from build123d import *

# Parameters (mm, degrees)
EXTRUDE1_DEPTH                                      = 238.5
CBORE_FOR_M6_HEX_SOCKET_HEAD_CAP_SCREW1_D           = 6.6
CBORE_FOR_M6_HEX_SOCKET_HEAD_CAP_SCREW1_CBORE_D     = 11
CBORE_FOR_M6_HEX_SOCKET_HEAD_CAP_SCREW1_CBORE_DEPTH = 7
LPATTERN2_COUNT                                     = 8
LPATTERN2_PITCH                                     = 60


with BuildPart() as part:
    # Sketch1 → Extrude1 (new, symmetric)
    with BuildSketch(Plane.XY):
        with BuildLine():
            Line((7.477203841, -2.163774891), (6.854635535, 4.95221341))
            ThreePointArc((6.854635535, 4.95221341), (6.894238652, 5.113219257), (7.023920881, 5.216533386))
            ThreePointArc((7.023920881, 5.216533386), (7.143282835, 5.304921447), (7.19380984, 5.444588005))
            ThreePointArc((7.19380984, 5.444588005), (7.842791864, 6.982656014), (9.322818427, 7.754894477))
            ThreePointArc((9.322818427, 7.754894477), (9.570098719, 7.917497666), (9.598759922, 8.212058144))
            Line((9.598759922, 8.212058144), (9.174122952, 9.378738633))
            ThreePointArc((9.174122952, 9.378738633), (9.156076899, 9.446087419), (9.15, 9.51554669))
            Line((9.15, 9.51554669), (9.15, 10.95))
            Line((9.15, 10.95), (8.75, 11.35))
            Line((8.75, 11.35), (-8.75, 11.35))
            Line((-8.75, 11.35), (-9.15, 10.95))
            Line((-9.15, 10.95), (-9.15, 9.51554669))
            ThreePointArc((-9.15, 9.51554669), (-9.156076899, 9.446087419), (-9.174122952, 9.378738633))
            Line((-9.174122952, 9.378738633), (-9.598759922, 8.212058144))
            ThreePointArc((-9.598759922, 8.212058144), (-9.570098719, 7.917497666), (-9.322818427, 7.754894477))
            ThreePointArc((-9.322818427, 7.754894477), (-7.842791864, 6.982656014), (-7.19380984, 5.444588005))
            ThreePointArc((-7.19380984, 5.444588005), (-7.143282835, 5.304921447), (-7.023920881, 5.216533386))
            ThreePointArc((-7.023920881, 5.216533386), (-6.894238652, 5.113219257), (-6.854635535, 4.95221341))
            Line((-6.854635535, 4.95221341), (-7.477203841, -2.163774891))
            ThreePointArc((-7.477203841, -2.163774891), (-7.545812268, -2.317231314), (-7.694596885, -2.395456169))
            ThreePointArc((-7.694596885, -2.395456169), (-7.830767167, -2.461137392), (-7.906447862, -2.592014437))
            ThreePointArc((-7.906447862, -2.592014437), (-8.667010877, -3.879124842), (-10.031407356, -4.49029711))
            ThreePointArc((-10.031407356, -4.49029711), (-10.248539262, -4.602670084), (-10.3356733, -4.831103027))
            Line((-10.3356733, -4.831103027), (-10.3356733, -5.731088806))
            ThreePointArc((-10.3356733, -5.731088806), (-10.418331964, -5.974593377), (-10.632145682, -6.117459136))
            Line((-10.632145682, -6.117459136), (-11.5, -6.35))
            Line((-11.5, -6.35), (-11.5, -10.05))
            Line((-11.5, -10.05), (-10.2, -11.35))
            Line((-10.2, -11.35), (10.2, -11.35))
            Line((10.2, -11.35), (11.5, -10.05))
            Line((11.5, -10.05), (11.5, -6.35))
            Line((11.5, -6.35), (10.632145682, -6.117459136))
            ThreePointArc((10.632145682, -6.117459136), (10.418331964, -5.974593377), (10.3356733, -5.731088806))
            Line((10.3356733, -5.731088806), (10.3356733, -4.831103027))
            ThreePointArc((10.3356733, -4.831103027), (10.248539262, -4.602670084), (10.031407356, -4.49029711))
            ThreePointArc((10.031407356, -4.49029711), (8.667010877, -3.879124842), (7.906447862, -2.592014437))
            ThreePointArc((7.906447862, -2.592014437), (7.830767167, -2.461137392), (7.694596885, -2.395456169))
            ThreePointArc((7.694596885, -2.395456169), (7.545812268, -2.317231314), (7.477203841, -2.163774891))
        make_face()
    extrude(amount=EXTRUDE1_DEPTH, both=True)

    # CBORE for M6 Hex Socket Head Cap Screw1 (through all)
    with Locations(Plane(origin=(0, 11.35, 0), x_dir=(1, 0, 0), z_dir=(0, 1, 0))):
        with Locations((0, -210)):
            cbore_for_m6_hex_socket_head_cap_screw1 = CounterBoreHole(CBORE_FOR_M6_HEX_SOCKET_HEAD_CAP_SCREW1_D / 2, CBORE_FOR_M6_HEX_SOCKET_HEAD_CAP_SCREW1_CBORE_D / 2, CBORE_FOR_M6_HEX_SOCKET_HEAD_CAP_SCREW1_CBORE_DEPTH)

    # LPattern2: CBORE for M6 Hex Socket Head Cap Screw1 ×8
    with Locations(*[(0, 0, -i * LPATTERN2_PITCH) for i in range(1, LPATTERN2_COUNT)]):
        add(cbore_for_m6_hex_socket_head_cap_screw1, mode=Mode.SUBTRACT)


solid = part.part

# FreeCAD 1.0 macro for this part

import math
import FreeCAD as App
import Part
import Sketcher

V = App.Vector
Q = App.Units.Quantity

doc = App.newDocument("Part")
params = doc.addObject("Spreadsheet::Sheet", "Params")
for row, (alias, value) in enumerate([
    ("sketch1_radius", "0.4 mm"),
    ("sketch1_width", "17.5 mm"),
    ("sketch1_width2", "20.4 mm"),
    ("sketch1_height", "3.7 mm"),
    ("pad1_length", "477 mm"),
    ("sketch2_diameter", "6.6 mm"),
    ("hole_diameter", "6.6 mm"),
    ("hole_cbore_diameter", "11 mm"),
    ("hole_cbore_depth", "7 mm"),
    ("linearpattern_pitch", "60 mm"),
], start=1):
    params.set(f"A{row}", alias)
    params.set(f"B{row}", "=" + value)
    params.setAlias(f"B{row}", alias)

body = doc.addObject("PartDesign::Body", "Body")

# Sketch on XY plane
sketch1 = body.newObject("Sketcher::SketchObject", "Sketch")
sketch1.AttachmentSupport = (doc.getObject("XY_Plane"), [""])
sketch1.MapMode = "FlatFace"
sketch1.addGeometry(Part.LineSegment(V(7.48, -2.16, 0), V(6.85, 4.95, 0)), False)
sketch1.addGeometry(Part.ArcOfCircle(Part.Circle(V(7.11, 4.97, 0), V(0, 0, 1), 0.26), math.radians(110), math.radians(185)), False)
sketch1.addGeometry(Part.ArcOfCircle(Part.Circle(V(6.94, 5.46, 0), V(0, 0, 1), 0.26), math.radians(-70), math.radians(-3)), False)
sketch1.addGeometry(Part.ArcOfCircle(Part.Circle(V(9.66, 5.31, 0), V(0, 0, 1), 2.47), math.radians(98), math.radians(177)), False)
sketch1.addGeometry(Part.ArcOfCircle(Part.Circle(V(9.28, 8.09, 0), V(0, 0, 1), 0.34), math.radians(-82), math.radians(20)), False)
sketch1.addGeometry(Part.LineSegment(V(9.6, 8.21, 0), V(9.17, 9.38, 0)), False)
sketch1.addGeometry(Part.ArcOfCircle(Part.Circle(V(9.55, 9.52, 0), V(0, 0, 1), 0.4), math.radians(-180), math.radians(-160)), False)
sketch1.addGeometry(Part.LineSegment(V(9.15, 9.52, 0), V(9.15, 10.95, 0)), False)
sketch1.addGeometry(Part.LineSegment(V(9.15, 10.95, 0), V(8.75, 11.35, 0)), False)
sketch1.addGeometry(Part.LineSegment(V(8.75, 11.35, 0), V(-8.75, 11.35, 0)), False)
sketch1.addGeometry(Part.LineSegment(V(-8.75, 11.35, 0), V(-9.15, 10.95, 0)), False)
sketch1.addGeometry(Part.LineSegment(V(-9.15, 10.95, 0), V(-9.15, 9.52, 0)), False)
sketch1.addGeometry(Part.ArcOfCircle(Part.Circle(V(-9.55, 9.52, 0), V(0, 0, 1), 0.4), math.radians(-20), math.radians(0)), False)
sketch1.addGeometry(Part.LineSegment(V(-9.17, 9.38, 0), V(-9.6, 8.21, 0)), False)
sketch1.addGeometry(Part.ArcOfCircle(Part.Circle(V(-9.28, 8.09, 0), V(0, 0, 1), 0.34), math.radians(160), math.radians(262)), False)
sketch1.addGeometry(Part.ArcOfCircle(Part.Circle(V(-9.66, 5.31, 0), V(0, 0, 1), 2.47), math.radians(3), math.radians(82)), False)
sketch1.addGeometry(Part.ArcOfCircle(Part.Circle(V(-6.94, 5.46, 0), V(0, 0, 1), 0.26), math.radians(-177), math.radians(-110)), False)
sketch1.addGeometry(Part.ArcOfCircle(Part.Circle(V(-7.11, 4.97, 0), V(0, 0, 1), 0.26), math.radians(-5), math.radians(70)), False)
sketch1.addGeometry(Part.LineSegment(V(-6.85, 4.95, 0), V(-7.48, -2.16, 0)), False)
sketch1.addGeometry(Part.ArcOfCircle(Part.Circle(V(-7.73, -2.14, 0), V(0, 0, 1), 0.26), math.radians(-81), math.radians(-5)), False)
sketch1.addGeometry(Part.ArcOfCircle(Part.Circle(V(-7.66, -2.65, 0), V(0, 0, 1), 0.26), math.radians(99), math.radians(167)), False)
sketch1.addGeometry(Part.ArcOfCircle(Part.Circle(V(-10.31, -2.04, 0), V(0, 0, 1), 2.47), math.radians(-84), math.radians(-13)), False)
sketch1.addGeometry(Part.ArcOfCircle(Part.Circle(V(-9.99, -4.83, 0), V(0, 0, 1), 0.34), math.radians(96), math.radians(180)), False)
sketch1.addGeometry(Part.LineSegment(V(-10.34, -4.83, 0), V(-10.34, -5.73, 0)), False)
sketch1.addGeometry(Part.ArcOfCircle(Part.Circle(V(-10.74, -5.73, 0), V(0, 0, 1), 0.4), math.radians(-75), math.radians(0)), False)
sketch1.addGeometry(Part.LineSegment(V(-10.63, -6.12, 0), V(-11.5, -6.35, 0)), False)
sketch1.addGeometry(Part.LineSegment(V(-11.5, -6.35, 0), V(-11.5, -10.05, 0)), False)
sketch1.addGeometry(Part.LineSegment(V(-11.5, -10.05, 0), V(-10.2, -11.35, 0)), False)
sketch1.addGeometry(Part.LineSegment(V(-10.2, -11.35, 0), V(10.2, -11.35, 0)), False)
sketch1.addGeometry(Part.LineSegment(V(10.2, -11.35, 0), V(11.5, -10.05, 0)), False)
sketch1.addGeometry(Part.LineSegment(V(11.5, -10.05, 0), V(11.5, -6.35, 0)), False)
sketch1.addGeometry(Part.LineSegment(V(11.5, -6.35, 0), V(10.63, -6.12, 0)), False)
sketch1.addGeometry(Part.ArcOfCircle(Part.Circle(V(10.74, -5.73, 0), V(0, 0, 1), 0.4), math.radians(-180), math.radians(-105)), False)
sketch1.addGeometry(Part.LineSegment(V(10.34, -5.73, 0), V(10.34, -4.83, 0)), False)
sketch1.addGeometry(Part.ArcOfCircle(Part.Circle(V(9.99, -4.83, 0), V(0, 0, 1), 0.34), math.radians(0), math.radians(84)), False)
sketch1.addGeometry(Part.ArcOfCircle(Part.Circle(V(10.31, -2.04, 0), V(0, 0, 1), 2.47), math.radians(-167), math.radians(-96)), False)
sketch1.addGeometry(Part.ArcOfCircle(Part.Circle(V(7.66, -2.65, 0), V(0, 0, 1), 0.26), math.radians(13), math.radians(81)), False)
sketch1.addGeometry(Part.ArcOfCircle(Part.Circle(V(7.73, -2.14, 0), V(0, 0, 1), 0.26), math.radians(-175), math.radians(-99)), False)
sketch1.addConstraint(Sketcher.Constraint("Tangent", 0, 2, 1, 2))
sketch1.addConstraint(Sketcher.Constraint("Tangent", 1, 1, 2, 1))
sketch1.addConstraint(Sketcher.Constraint("Tangent", 2, 2, 3, 2))
sketch1.addConstraint(Sketcher.Constraint("Tangent", 3, 1, 4, 1))
sketch1.addConstraint(Sketcher.Constraint("Tangent", 4, 2, 5, 1))
sketch1.addConstraint(Sketcher.Constraint("Tangent", 5, 2, 6, 2))
sketch1.addConstraint(Sketcher.Constraint("Tangent", 6, 1, 7, 1))
sketch1.addConstraint(Sketcher.Constraint("Coincident", 7, 2, 8, 1))
sketch1.addConstraint(Sketcher.Constraint("Coincident", 8, 2, 9, 1))
sketch1.addConstraint(Sketcher.Constraint("Coincident", 9, 2, 10, 1))
sketch1.addConstraint(Sketcher.Constraint("Coincident", 10, 2, 11, 1))
sketch1.addConstraint(Sketcher.Constraint("Tangent", 11, 2, 12, 2))
sketch1.addConstraint(Sketcher.Constraint("Tangent", 12, 1, 13, 1))
sketch1.addConstraint(Sketcher.Constraint("Tangent", 13, 2, 14, 1))
sketch1.addConstraint(Sketcher.Constraint("Tangent", 14, 2, 15, 2))
sketch1.addConstraint(Sketcher.Constraint("Tangent", 15, 1, 16, 1))
sketch1.addConstraint(Sketcher.Constraint("Tangent", 16, 2, 17, 2))
sketch1.addConstraint(Sketcher.Constraint("Tangent", 17, 1, 18, 1))
sketch1.addConstraint(Sketcher.Constraint("Tangent", 18, 2, 19, 2))
sketch1.addConstraint(Sketcher.Constraint("Tangent", 19, 1, 20, 1))
sketch1.addConstraint(Sketcher.Constraint("Tangent", 20, 2, 21, 2))
sketch1.addConstraint(Sketcher.Constraint("Tangent", 21, 1, 22, 1))
sketch1.addConstraint(Sketcher.Constraint("Tangent", 22, 2, 23, 1))
sketch1.addConstraint(Sketcher.Constraint("Tangent", 23, 2, 24, 2))
sketch1.addConstraint(Sketcher.Constraint("Tangent", 24, 1, 25, 1))
sketch1.addConstraint(Sketcher.Constraint("Coincident", 25, 2, 26, 1))
sketch1.addConstraint(Sketcher.Constraint("Coincident", 26, 2, 27, 1))
sketch1.addConstraint(Sketcher.Constraint("Coincident", 27, 2, 28, 1))
sketch1.addConstraint(Sketcher.Constraint("Coincident", 28, 2, 29, 1))
sketch1.addConstraint(Sketcher.Constraint("Coincident", 29, 2, 30, 1))
sketch1.addConstraint(Sketcher.Constraint("Coincident", 30, 2, 31, 1))
sketch1.addConstraint(Sketcher.Constraint("Tangent", 31, 2, 32, 2))
sketch1.addConstraint(Sketcher.Constraint("Tangent", 32, 1, 33, 1))
sketch1.addConstraint(Sketcher.Constraint("Tangent", 33, 2, 34, 1))
sketch1.addConstraint(Sketcher.Constraint("Tangent", 34, 2, 35, 2))
sketch1.addConstraint(Sketcher.Constraint("Tangent", 35, 1, 36, 1))
sketch1.addConstraint(Sketcher.Constraint("Tangent", 36, 2, 37, 2))
sketch1.addConstraint(Sketcher.Constraint("Tangent", 37, 1, 0, 1))
sketch1.addConstraint(Sketcher.Constraint("Vertical", 7))
sketch1.addConstraint(Sketcher.Constraint("Horizontal", 9))
sketch1.addConstraint(Sketcher.Constraint("Vertical", 11))
sketch1.addConstraint(Sketcher.Constraint("Vertical", 23))
sketch1.addConstraint(Sketcher.Constraint("Vertical", 26))
sketch1.addConstraint(Sketcher.Constraint("Horizontal", 28))
sketch1.addConstraint(Sketcher.Constraint("Vertical", 30))
sketch1.addConstraint(Sketcher.Constraint("Vertical", 33))
sketch1.addConstraint(Sketcher.Constraint("Equal", 1, 2))
sketch1.addConstraint(Sketcher.Constraint("Equal", 6, 12))
sketch1.addConstraint(Sketcher.Constraint("Equal", 4, 14))
sketch1.addConstraint(Sketcher.Constraint("Equal", 3, 15))
sketch1.addConstraint(Sketcher.Constraint("Equal", 2, 16))
sketch1.addConstraint(Sketcher.Constraint("Equal", 16, 17))
sketch1.addConstraint(Sketcher.Constraint("Equal", 17, 19))
sketch1.addConstraint(Sketcher.Constraint("Equal", 19, 20))
sketch1.addConstraint(Sketcher.Constraint("Equal", 15, 21))
sketch1.addConstraint(Sketcher.Constraint("Equal", 14, 22))
sketch1.addConstraint(Sketcher.Constraint("Equal", 12, 24))
sketch1.addConstraint(Sketcher.Constraint("Equal", 24, 32))
sketch1.addConstraint(Sketcher.Constraint("Equal", 22, 34))
sketch1.addConstraint(Sketcher.Constraint("Equal", 21, 35))
sketch1.addConstraint(Sketcher.Constraint("Equal", 20, 36))
sketch1.addConstraint(Sketcher.Constraint("Equal", 36, 37))
sketch1.addConstraint(Sketcher.Constraint("Symmetric", 6, 3, 12, 3, -2))
sketch1.addConstraint(Sketcher.Constraint("Symmetric", 4, 3, 14, 3, -2))
sketch1.addConstraint(Sketcher.Constraint("Symmetric", 2, 3, 16, 3, -2))
sketch1.addConstraint(Sketcher.Constraint("Symmetric", 24, 3, 32, 3, -2))
sketch1.addConstraint(Sketcher.Constraint("Symmetric", 21, 3, 35, 3, -2))
sketch1.addConstraint(Sketcher.Constraint("Symmetric", 19, 3, 37, 3, -2))
sketch1.addConstraint(Sketcher.Constraint("Symmetric", 26, 2, 29, 2, -2))
sketch1.addConstraint(Sketcher.Constraint("Perpendicular", 8, 10))
sketch1.addConstraint(Sketcher.Constraint("Perpendicular", 10, 27))
sketch1.addConstraint(Sketcher.Constraint("Perpendicular", 27, 29))
sketch1.addConstraint(Sketcher.Constraint("Horizontal", 1, 3, 17, 3))
sketch1.addConstraint(Sketcher.Constraint("Horizontal", 7, 2, 10, 2))
sketch1.addConstraint(Sketcher.Constraint("Horizontal", 25, 2, 30, 2))
sketch1.addConstraint(Sketcher.Constraint("Equal", 8, 10))
sketch1.addConstraint(Sketcher.Constraint("Radius", 6, Q("0.4 mm")))
sketch1.addConstraint(Sketcher.Constraint("Angle", 0, Q("95 deg")))
sketch1.addConstraint(Sketcher.Constraint("Angle", 5, Q("110 deg")))
sketch1.addConstraint(Sketcher.Constraint("Angle", 25, Q("-165 deg")))
sketch1.addConstraint(Sketcher.Constraint("DistanceX", 9, 2, 9, 1, Q("17.5 mm")))
sketch1.addConstraint(Sketcher.Constraint("DistanceX", 28, 1, 28, 2, Q("20.4 mm")))
sketch1.addConstraint(Sketcher.Constraint("DistanceY", 26, 2, 26, 1, Q("3.7 mm")))
sketch1.addConstraint(Sketcher.Constraint("Radius", 1, Q("0.257 mm")))
sketch1.addConstraint(Sketcher.Constraint("Radius", 3, Q("2.466 mm")))
sketch1.addConstraint(Sketcher.Constraint("Radius", 4, Q("0.343 mm")))
sketch1.addConstraint(Sketcher.Constraint("DistanceY", 27, 2, 25, 2, Q("5 mm")))
sketch1.addConstraint(Sketcher.Constraint("DistanceX", 12, 3, 6, 3, Q("19.1 mm")))
sketch1.addConstraint(Sketcher.Constraint("DistanceY", -1, 1, 7, 2, Q("10.95 mm")))
sketch1.addConstraint(Sketcher.Constraint("DistanceY", 25, 2, -1, 1, Q("6.35 mm")))
sketch1.addConstraint(Sketcher.Constraint("DistanceY", 4, 3, 6, 3, Q("1.420801 mm")))
sketch1.addConstraint(Sketcher.Constraint("DistanceX", 21, 3, 16, 3, Q("3.372702 mm")))
sketch1.addConstraint(Sketcher.Constraint("DistanceY", 32, 3, 1, 3, Q("10.705701 mm")))
sketch1.addConstraint(Sketcher.Constraint("DistanceX", 3, 1, 3, 3, Q("0.333399 mm")))
sketch1.addConstraint(Sketcher.Constraint("Distance", 0, Q("7.14317 mm")))
sketch1.addConstraint(Sketcher.Constraint("Distance", 25, Q("0.898469 mm")))
sketch1.addConstraint(Sketcher.Constraint("DistanceY", 7, 1, 7, 2, Q("1.434453 mm")))
sketch1.addConstraint(Sketcher.Constraint("DistanceY", 23, 2, 23, 1, Q("0.899986 mm")))
sketch1.addConstraint(Sketcher.Constraint("DistanceX", -1, 1, 1, 1, Q("7.023921 mm")))
sketch1.setExpression("Constraints[76]", "Params.sketch1_radius")
sketch1.setExpression("Constraints[80]", "Params.sketch1_width")
sketch1.setExpression("Constraints[81]", "Params.sketch1_width2")
sketch1.setExpression("Constraints[82]", "Params.sketch1_height")
pad1 = body.newObject("PartDesign::Pad", "Pad")
pad1.Profile = sketch1
pad1.setExpression("Length", "Params.pad1_length")
pad1.Midplane = True

# Sketch on XZ plane
sketch2 = body.newObject("Sketcher::SketchObject", "Sketch001")
sketch2.AttachmentSupport = (doc.getObject("XZ_Plane"), [""])
sketch2.MapMode = "FlatFace"
sketch2.AttachmentOffset = App.Placement(V(0, 0, -11.35), App.Rotation())
sketch2.addGeometry(Part.Circle(V(0, 210, 0), V(0, 0, 1), 3.3), False)
sketch2.addConstraint(Sketcher.Constraint("PointOnObject", 0, 3, -2))
sketch2.addConstraint(Sketcher.Constraint("Diameter", 0, Q("6.6 mm")))
sketch2.addConstraint(Sketcher.Constraint("DistanceY", -1, 1, 0, 3, Q("210 mm")))
sketch2.setExpression("Constraints[1]", "Params.sketch2_diameter")
doc.recompute()
hole = body.newObject("PartDesign::Hole", "Hole")
hole.Profile = sketch2
hole.ThreadType = "None"
hole.setExpression("Diameter", "Params.hole_diameter")
hole.DepthType = "ThroughAll"
hole.HoleCutType = "Counterbore"
hole.setExpression("HoleCutDiameter", "Params.hole_cbore_diameter")
hole.setExpression("HoleCutDepth", "Params.hole_cbore_depth")
hole.Reversed = True
doc.recompute()

linearpattern = body.newObject("PartDesign::LinearPattern", "LinearPattern")
linearpattern.Originals = [hole]
linearpattern.Direction = (doc.getObject("Z_Axis"), [""])
linearpattern.Mode = "offset"
linearpattern.setExpression("Offset", "Params.linearpattern_pitch")
linearpattern.Occurrences = 8
linearpattern.Reversed = True
body.Tip = linearpattern

doc.recompute()
